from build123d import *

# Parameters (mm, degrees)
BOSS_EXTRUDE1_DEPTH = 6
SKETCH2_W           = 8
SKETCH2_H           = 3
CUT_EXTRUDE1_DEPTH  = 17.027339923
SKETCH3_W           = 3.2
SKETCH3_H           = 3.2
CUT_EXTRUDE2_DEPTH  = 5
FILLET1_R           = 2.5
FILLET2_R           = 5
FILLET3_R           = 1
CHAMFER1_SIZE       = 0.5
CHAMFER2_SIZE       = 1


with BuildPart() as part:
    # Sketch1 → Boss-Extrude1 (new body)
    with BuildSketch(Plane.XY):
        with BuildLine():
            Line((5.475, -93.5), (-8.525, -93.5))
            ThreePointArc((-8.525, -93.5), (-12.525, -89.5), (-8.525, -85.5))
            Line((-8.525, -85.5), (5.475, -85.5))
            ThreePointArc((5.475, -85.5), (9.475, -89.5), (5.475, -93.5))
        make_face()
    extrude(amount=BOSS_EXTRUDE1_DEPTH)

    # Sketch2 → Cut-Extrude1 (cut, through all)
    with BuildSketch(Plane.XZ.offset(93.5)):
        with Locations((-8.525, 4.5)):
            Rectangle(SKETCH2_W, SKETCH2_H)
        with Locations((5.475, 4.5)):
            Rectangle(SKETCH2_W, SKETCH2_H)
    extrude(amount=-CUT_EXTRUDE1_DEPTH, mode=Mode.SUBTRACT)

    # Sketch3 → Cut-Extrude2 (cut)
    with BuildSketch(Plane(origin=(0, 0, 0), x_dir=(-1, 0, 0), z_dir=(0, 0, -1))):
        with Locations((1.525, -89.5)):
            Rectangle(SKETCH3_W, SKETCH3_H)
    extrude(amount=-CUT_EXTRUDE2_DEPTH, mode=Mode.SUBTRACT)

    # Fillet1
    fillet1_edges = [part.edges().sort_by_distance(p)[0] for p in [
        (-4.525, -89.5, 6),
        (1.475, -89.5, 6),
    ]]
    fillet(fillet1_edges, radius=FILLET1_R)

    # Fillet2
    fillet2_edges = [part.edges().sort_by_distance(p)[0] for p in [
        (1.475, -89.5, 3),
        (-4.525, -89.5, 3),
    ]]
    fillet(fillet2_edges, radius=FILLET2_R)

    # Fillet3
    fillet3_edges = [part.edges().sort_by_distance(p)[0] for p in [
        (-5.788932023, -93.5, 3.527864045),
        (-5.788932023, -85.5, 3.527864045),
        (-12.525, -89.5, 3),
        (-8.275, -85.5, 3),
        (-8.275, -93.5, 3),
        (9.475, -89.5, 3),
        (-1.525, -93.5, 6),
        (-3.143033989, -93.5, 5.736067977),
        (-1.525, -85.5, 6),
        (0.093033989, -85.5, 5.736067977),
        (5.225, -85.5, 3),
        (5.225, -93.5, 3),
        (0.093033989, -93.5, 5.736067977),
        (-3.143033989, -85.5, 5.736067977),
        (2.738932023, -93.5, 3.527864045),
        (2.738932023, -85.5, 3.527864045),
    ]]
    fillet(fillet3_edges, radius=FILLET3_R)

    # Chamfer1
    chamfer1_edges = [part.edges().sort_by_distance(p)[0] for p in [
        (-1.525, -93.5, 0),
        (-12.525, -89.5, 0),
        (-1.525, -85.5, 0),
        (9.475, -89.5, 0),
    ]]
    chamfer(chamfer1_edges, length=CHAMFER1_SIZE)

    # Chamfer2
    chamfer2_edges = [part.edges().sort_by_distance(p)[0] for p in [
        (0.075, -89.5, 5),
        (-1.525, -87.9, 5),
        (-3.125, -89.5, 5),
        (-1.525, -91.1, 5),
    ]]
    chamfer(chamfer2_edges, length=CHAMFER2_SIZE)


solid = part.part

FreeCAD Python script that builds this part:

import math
import FreeCAD as App
import Part
import Sketcher
from FreeCAD import Vector


def edges_at(feature, points):
    """Names of the edges that pass closest to the given points."""
    edges = feature.Shape.Edges
    near = lambda p: min(range(len(edges)), key=lambda i: edges[i].distToShape(Part.Vertex(*p))[0])
    return sorted({f"Edge{near(p) + 1}" for p in points})


def add_polygon(sketch, points):
    """Adds a closed chain of lines whose ends are joined by coincident constraints."""
    first, n = sketch.GeometryCount, len(points)
    for a, b in zip(points, points[1:] + points[:1]):
        sketch.addGeometry(Part.LineSegment(App.Vector(*a, 0), App.Vector(*b, 0)), False)
    for i in range(n):
        sketch.addConstraint(Sketcher.Constraint("Coincident", first + i, 2, first + (i + 1) % n, 1))

doc = App.newDocument("Part")
body = doc.addObject("PartDesign::Body", "Body")

# Sketch on XY plane
sketch1 = doc.addObject("Sketcher::SketchObject", "Sketch")
body.addObject(sketch1)
sketch1.AttachmentSupport = (doc.XY_Plane, [""])
sketch1.MapMode = "FlatFace"
sketch1.addGeometry([
    Part.LineSegment(Vector(-8.525, -93.5, 0), Vector(5.475, -93.5, 0)),
    Part.ArcOfCircle(Part.Circle(Vector(5.475, -89.5, 0), Vector(0, 0, 1), 4), math.radians(-90), math.radians(90)),
    Part.LineSegment(Vector(5.475, -85.5, 0), Vector(-8.525, -85.5, 0)),
    Part.ArcOfCircle(Part.Circle(Vector(-8.525, -89.5, 0), Vector(0, 0, 1), 4), math.radians(90), math.radians(270)),
], False)
sketch1.addConstraint([
    Sketcher.Constraint("Tangent", 0, 2, 1, 1),
    Sketcher.Constraint("Tangent", 1, 2, 2, 1),
    Sketcher.Constraint("Tangent", 2, 2, 3, 1),
    Sketcher.Constraint("Tangent", 3, 2, 0, 1),
    Sketcher.Constraint("Horizontal", 0),
    Sketcher.Constraint("Horizontal", 2),
    Sketcher.Constraint("Radius", 1, 4.0),
    Sketcher.Constraint("DistanceX", 0, 1, 0, 2, 14.0),
    Sketcher.Constraint("DistanceY", 1, 3, -1, 1, 89.5),
    Sketcher.Constraint("DistanceX", -1, 1, 1, 3, 5.475),
])
pad1 = doc.addObject("PartDesign::Pad", "Pad")
body.addObject(pad1)
pad1.Profile = sketch1
pad1.Length = 6

# Sketch on XZ plane
sketch2 = doc.addObject("Sketcher::SketchObject", "Sketch001")
body.addObject(sketch2)
sketch2.AttachmentSupport = (doc.XZ_Plane, [""])
sketch2.MapMode = "FlatFace"
sketch2.AttachmentOffset = App.Placement(Vector(0, 0, 93.5), App.Rotation())
add_polygon(sketch2, [(-12.525, 6), (-12.525, 3), (-4.525, 3), (-4.525, 6)])  # lines 0-3
add_polygon(sketch2, [(1.475, 6), (1.475, 3), (9.475, 3), (9.475, 6)])  # lines 4-7
sketch2.addConstraint([
    Sketcher.Constraint("Vertical", 0),
    Sketcher.Constraint("Horizontal", 1),
    Sketcher.Constraint("Vertical", 2),
    Sketcher.Constraint("Horizontal", 3),
    Sketcher.Constraint("Vertical", 4),
    Sketcher.Constraint("Horizontal", 5),
    Sketcher.Constraint("Vertical", 6),
    Sketcher.Constraint("Horizontal", 7),
    Sketcher.Constraint("Horizontal", 1, 2, 4, 2),
    Sketcher.Constraint("Horizontal", 3, 2, 6, 2),
    Sketcher.Constraint("Equal", 3, 5),
    Sketcher.Constraint("DistanceX", 1, 1, 1, 2, 8.0),
    Sketcher.Constraint("DistanceY", 0, 2, 0, 1, 3.0),
    Sketcher.Constraint("DistanceY", -1, 1, 0, 2, 3.0),
    Sketcher.Constraint("DistanceX", 1, 2, 4, 2, 6.0),
    Sketcher.Constraint("DistanceX", 0, 2, -1, 1, 12.525),
])
pocket1 = doc.addObject("PartDesign::Pocket", "Pocket")
body.addObject(pocket1)
pocket1.Profile = sketch2
pocket1.Type = "ThroughAll"

# Sketch on XY plane
sketch3 = doc.addObject("Sketcher::SketchObject", "Sketch002")
body.addObject(sketch3)
sketch3.AttachmentSupport = (doc.XY_Plane, [""])
sketch3.MapMode = "FlatFace"
add_polygon(sketch3, [(0.075, -87.9), (0.075, -91.1), (-3.125, -91.1), (-3.125, -87.9)])  # lines 0-3
sketch3.addConstraint([
    Sketcher.Constraint("Vertical", 0),
    Sketcher.Constraint("Horizontal", 1),
    Sketcher.Constraint("Vertical", 2),
    Sketcher.Constraint("Horizontal", 3),
    Sketcher.Constraint("Equal", 3, 0),
    Sketcher.Constraint("DistanceX", 1, 2, 1, 1, 3.2),
    Sketcher.Constraint("DistanceY", 0, 2, -1, 1, 91.1),
    Sketcher.Constraint("DistanceX", -1, 1, 0, 2, 0.075),
])
pocket2 = doc.addObject("PartDesign::Pocket", "Pocket001")
body.addObject(pocket2)
pocket2.Profile = sketch3
pocket2.Length = 5
pocket2.Reversed = True
doc.recompute()

fillet = doc.addObject("PartDesign::Fillet", "Fillet")
body.addObject(fillet)
fillet.Base = (pocket2, edges_at(pocket2, [(-4.525, -89.5, 6), (1.475, -89.5, 6)]))
fillet.Radius = 2.5
doc.recompute()

fillet2 = doc.addObject("PartDesign::Fillet", "Fillet001")
body.addObject(fillet2)
fillet2.Base = (fillet, edges_at(fillet, [(1.475, -89.5, 3), (-4.525, -89.5, 3)]))
fillet2.Radius = 5
doc.recompute()

fillet3 = doc.addObject("PartDesign::Fillet", "Fillet002")
body.addObject(fillet3)
fillet3.Base = (fillet2, edges_at(fillet2, [
    (-5.789, -93.5, 3.528),
    (-5.789, -85.5, 3.528),
    (-12.525, -89.5, 3),
    (-8.275, -85.5, 3),
    (-8.275, -93.5, 3),
    (9.475, -89.5, 3),
    (-1.525, -93.5, 6),
    (-3.143, -93.5, 5.736),
    (-1.525, -85.5, 6),
    (0.093, -85.5, 5.736),
    (5.225, -85.5, 3),
    (5.225, -93.5, 3),
    (0.093, -93.5, 5.736),
    (-3.143, -85.5, 5.736),
    (2.739, -93.5, 3.528),
    (2.739, -85.5, 3.528),
]))
fillet3.Radius = 1
doc.recompute()

chamfer = doc.addObject("PartDesign::Chamfer", "Chamfer")
body.addObject(chamfer)
chamfer.Base = (fillet3, edges_at(fillet3, [
    (-1.525, -93.5, 0),
    (-12.525, -89.5, 0),
    (-1.525, -85.5, 0),
    (9.475, -89.5, 0),
]))
chamfer.Size = 0.5
doc.recompute()

chamfer2 = doc.addObject("PartDesign::Chamfer", "Chamfer001")
body.addObject(chamfer2)
chamfer2.Base = (chamfer, edges_at(chamfer, [
    (0.075, -89.5, 5),
    (-1.525, -87.9, 5),
    (-3.125, -89.5, 5),
    (-1.525, -91.1, 5),
]))
chamfer2.Size = 1

doc.recompute()
